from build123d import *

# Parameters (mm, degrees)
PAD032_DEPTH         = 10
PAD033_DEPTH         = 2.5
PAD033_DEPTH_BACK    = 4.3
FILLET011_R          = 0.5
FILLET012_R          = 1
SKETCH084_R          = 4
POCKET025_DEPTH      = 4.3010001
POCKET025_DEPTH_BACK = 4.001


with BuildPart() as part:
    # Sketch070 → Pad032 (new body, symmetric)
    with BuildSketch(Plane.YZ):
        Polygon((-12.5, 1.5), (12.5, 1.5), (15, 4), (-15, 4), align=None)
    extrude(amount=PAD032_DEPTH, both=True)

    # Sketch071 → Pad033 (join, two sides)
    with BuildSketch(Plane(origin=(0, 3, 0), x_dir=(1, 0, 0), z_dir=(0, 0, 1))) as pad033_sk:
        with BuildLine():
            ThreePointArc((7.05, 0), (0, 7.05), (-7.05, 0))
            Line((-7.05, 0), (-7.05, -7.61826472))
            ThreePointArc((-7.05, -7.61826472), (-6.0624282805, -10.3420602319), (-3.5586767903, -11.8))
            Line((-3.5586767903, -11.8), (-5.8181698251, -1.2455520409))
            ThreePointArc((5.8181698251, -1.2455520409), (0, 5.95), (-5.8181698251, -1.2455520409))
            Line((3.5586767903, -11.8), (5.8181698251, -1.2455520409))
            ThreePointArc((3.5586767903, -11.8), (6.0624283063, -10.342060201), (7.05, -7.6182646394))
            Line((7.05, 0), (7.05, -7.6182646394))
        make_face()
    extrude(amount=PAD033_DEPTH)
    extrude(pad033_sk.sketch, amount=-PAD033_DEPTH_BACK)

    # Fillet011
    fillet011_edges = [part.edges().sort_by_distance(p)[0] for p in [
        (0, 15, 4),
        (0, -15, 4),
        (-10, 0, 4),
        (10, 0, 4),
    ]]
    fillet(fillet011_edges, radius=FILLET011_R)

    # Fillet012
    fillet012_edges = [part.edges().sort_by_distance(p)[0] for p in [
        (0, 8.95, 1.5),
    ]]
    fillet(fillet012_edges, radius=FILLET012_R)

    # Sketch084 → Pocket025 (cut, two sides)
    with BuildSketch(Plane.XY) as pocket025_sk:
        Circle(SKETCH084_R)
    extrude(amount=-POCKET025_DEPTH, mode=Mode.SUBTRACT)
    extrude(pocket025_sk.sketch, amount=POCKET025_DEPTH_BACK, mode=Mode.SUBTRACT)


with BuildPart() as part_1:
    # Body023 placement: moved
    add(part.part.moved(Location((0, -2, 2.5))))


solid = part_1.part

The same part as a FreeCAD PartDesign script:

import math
import FreeCAD as App
import Part
import Sketcher


def edges_at(feature, points):
    """Names of the edges that pass closest to the given points."""
    edges = feature.Shape.Edges
    near = lambda p: min(range(len(edges)), key=lambda i: edges[i].distToShape(Part.Vertex(*p))[0])
    return sorted({f"Edge{near(p) + 1}" for p in points})


def add_polygon(sketch, points):
    """Adds a closed chain of lines whose ends are joined by coincident constraints."""
    first, n = sketch.GeometryCount, len(points)
    for a, b in zip(points, points[1:] + points[:1]):
        sketch.addGeometry(Part.LineSegment(App.Vector(*a, 0), App.Vector(*b, 0)), False)
    for i in range(n):
        sketch.addConstraint(Sketcher.Constraint("Coincident", first + i, 2, first + (i + 1) % n, 1))

doc = App.newDocument("Part")
body = doc.addObject("PartDesign::Body", "Body")

# Sketch on YZ plane
sketch1 = body.newObject("Sketcher::SketchObject", "Sketch")
sketch1.AttachmentSupport = (doc.getObject("YZ_Plane"), [""])
sketch1.MapMode = "FlatFace"
add_polygon(sketch1, [(-12.5, 1.5), (12.5, 1.5), (15, 4), (-15, 4)])  # lines 0-3
sketch1.addConstraint(Sketcher.Constraint("Horizontal", 0))
sketch1.addConstraint(Sketcher.Constraint("Horizontal", 2))
sketch1.addConstraint(Sketcher.Constraint("Perpendicular", 1, 3))
sketch1.addConstraint(Sketcher.Constraint("Equal", 1, 3))
sketch1.addConstraint(Sketcher.Constraint("DistanceX", 0, 1, 0, 2, 25.0))
sketch1.addConstraint(Sketcher.Constraint("DistanceX", 2, 2, 2, 1, 30.0))
sketch1.addConstraint(Sketcher.Constraint("DistanceX", -1, 1, 1, 2, 15.0))
sketch1.addConstraint(Sketcher.Constraint("DistanceY", -1, 1, 1, 2, 4.0))
pad1 = body.newObject("PartDesign::Pad", "Pad")
pad1.Profile = sketch1
pad1.Length = 20
pad1.Midplane = True

# Sketch on XY plane
sketch2 = body.newObject("Sketcher::SketchObject", "Sketch001")
sketch2.AttachmentSupport = (doc.getObject("XY_Plane"), [""])
sketch2.MapMode = "FlatFace"
sketch2.addGeometry(Part.ArcOfCircle(Part.Circle(App.Vector(0, 3, 0), App.Vector(0, 0, 1), 7.05), math.radians(0), math.radians(180)), False)
sketch2.addGeometry(Part.LineSegment(App.Vector(-7.05, 3, 0), App.Vector(-7.05, -4.618265, 0)), False)
sketch2.addGeometry(Part.ArcOfCircle(Part.Circle(App.Vector(-2.8, -4.618265, 0), App.Vector(0, 0, 1), 4.25), math.radians(179.999999), math.radians(259.716889)), False)
sketch2.addGeometry(Part.LineSegment(App.Vector(-3.558677, -8.8, 0), App.Vector(-5.81817, 1.754448, 0)), False)
sketch2.addGeometry(Part.ArcOfCircle(Part.Circle(App.Vector(0, 3, 0), App.Vector(0, 0, 1), 5.95), math.radians(-12.083471), math.radians(192.083471)), False)
sketch2.addGeometry(Part.LineSegment(App.Vector(5.81817, 1.754448, 0), App.Vector(3.558677, -8.8, 0)), False)
sketch2.addGeometry(Part.ArcOfCircle(Part.Circle(App.Vector(2.8, -4.618265, 0), App.Vector(0, 0, 1), 4.25), math.radians(-79.716889), math.radians(0.000002)), False)
sketch2.addGeometry(Part.LineSegment(App.Vector(7.05, -4.618265, 0), App.Vector(7.05, 3, 0)), False)
sketch2.addConstraint(Sketcher.Constraint("Tangent", 0, 2, 1, 1))
sketch2.addConstraint(Sketcher.Constraint("Tangent", 1, 2, 2, 1))
sketch2.addConstraint(Sketcher.Constraint("Coincident", 2, 2, 3, 1))
sketch2.addConstraint(Sketcher.Constraint("Tangent", 3, 2, 4, 2))
sketch2.addConstraint(Sketcher.Constraint("Tangent", 4, 1, 5, 1))
sketch2.addConstraint(Sketcher.Constraint("Coincident", 5, 2, 6, 1))
sketch2.addConstraint(Sketcher.Constraint("Tangent", 6, 2, 7, 1))
sketch2.addConstraint(Sketcher.Constraint("Tangent", 7, 2, 0, 1))
sketch2.addConstraint(Sketcher.Constraint("Vertical", 1))
sketch2.addConstraint(Sketcher.Constraint("Vertical", 7))
sketch2.addConstraint(Sketcher.Constraint("Coincident", 4, 3, 0, 3))
sketch2.addConstraint(Sketcher.Constraint("Equal", 2, 6))
sketch2.addConstraint(Sketcher.Constraint("Symmetric", 2, 3, 6, 3, -2))
sketch2.addConstraint(Sketcher.Constraint("Horizontal", 3, 2, 4, 1))
sketch2.addConstraint(Sketcher.Constraint("Radius", 0, 7.05))
sketch2.addConstraint(Sketcher.Constraint("Radius", 2, 4.25))
sketch2.addConstraint(Sketcher.Constraint("Radius", 4, 5.95))
sketch2.addConstraint(Sketcher.Constraint("DistanceY", -1, 1, 0, 3, 3.0))
sketch2.addConstraint(Sketcher.Constraint("DistanceY", 2, 2, -1, 1, 8.8))
sketch2.addConstraint(Sketcher.Constraint("DistanceY", 1, 2, 1, 1, 7.618265))
pad2 = body.newObject("PartDesign::Pad", "Pad001")
pad2.Profile = sketch2
pad2.Type = "TwoLengths"
pad2.Length = 2.5
pad2.Length2 = 4.3
doc.recompute()

fillet = body.newObject("PartDesign::Fillet", "Fillet")
fillet.Base = (pad2, edges_at(pad2, [
    (0, 15, 4),
    (0, -15, 4),
    (-10, 0, 4),
    (10, 0, 4),
]))
fillet.Radius = 0.5
doc.recompute()

fillet2 = body.newObject("PartDesign::Fillet", "Fillet001")
fillet2.Base = (fillet, edges_at(fillet, [(0, 8.95, 1.5)]))
fillet2.Radius = 1

# Sketch on XY plane
sketch3 = body.newObject("Sketcher::SketchObject", "Sketch002")
sketch3.AttachmentSupport = (doc.getObject("XY_Plane"), [""])
sketch3.MapMode = "FlatFace"
sketch3.addGeometry(Part.Circle(App.Vector(0, 0, 0), App.Vector(0, 0, 1), 4), False)
sketch3.addConstraint(Sketcher.Constraint("Coincident", 0, 3, -1, 1))
sketch3.addConstraint(Sketcher.Constraint("Diameter", 0, 8.0))
pocket1 = body.newObject("PartDesign::Pocket", "Pocket")
pocket1.Profile = sketch3
pocket1.Type = "ThroughAll"
pocket1.Midplane = True
body2 = doc.addObject("PartDesign::Body", "Body001")
doc.recompute()

body.Placement = App.Placement(App.Vector(0, -2, 2.5), App.Rotation(App.Vector(0, 0, 1), 0))
boolean = body2.newObject("PartDesign::Boolean", "Boolean")
boolean.Type = "Fuse"
boolean.addObjects([body])

doc.recompute()
